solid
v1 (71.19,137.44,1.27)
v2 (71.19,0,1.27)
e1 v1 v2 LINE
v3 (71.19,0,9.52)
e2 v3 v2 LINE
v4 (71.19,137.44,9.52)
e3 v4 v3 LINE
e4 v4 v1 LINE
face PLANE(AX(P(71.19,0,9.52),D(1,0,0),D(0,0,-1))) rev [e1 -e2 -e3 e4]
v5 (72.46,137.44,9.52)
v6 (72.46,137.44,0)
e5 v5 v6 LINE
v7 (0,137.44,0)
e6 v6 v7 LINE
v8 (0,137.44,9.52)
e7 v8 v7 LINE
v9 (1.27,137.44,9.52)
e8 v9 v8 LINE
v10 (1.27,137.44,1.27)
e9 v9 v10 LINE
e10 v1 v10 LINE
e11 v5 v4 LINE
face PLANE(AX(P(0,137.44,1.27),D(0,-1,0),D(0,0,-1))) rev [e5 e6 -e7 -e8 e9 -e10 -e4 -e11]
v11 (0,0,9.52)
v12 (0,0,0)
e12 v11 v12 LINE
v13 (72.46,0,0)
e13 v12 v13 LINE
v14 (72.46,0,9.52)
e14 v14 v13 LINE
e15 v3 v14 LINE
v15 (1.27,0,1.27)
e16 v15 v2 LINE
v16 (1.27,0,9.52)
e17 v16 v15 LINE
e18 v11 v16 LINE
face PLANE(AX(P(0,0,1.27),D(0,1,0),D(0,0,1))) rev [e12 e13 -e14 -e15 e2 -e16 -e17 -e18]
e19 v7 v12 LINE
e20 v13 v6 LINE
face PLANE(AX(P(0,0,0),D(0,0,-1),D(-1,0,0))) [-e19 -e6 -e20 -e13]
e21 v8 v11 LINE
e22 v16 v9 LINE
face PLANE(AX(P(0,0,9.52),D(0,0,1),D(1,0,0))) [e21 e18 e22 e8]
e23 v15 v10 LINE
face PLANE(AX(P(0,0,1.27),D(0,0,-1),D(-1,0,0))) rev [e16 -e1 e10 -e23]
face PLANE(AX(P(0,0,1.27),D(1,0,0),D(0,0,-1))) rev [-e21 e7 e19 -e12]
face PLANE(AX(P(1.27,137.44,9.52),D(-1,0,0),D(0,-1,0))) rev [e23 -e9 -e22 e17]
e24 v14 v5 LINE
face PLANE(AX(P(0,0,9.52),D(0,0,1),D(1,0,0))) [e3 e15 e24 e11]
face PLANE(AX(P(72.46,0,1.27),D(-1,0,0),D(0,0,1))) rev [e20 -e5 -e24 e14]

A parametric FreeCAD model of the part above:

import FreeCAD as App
import Part
import Sketcher

V = App.Vector
Q = App.Units.Quantity

doc = App.newDocument("Part")
body = doc.addObject("PartDesign::Body", "Body")

# Sketch on XY plane
sketch1 = body.newObject("Sketcher::SketchObject", "Sketch")
sketch1.AttachmentSupport = (doc.getObject("XY_Plane"), [""])
sketch1.MapMode = "FlatFace"
sketch1.addGeometry([
    Part.LineSegment(V(0, 137, 0), V(0, 0, 0)),
    Part.LineSegment(V(0, 0, 0), V(72, 0, 0)),
    Part.LineSegment(V(72, 0, 0), V(72, 137, 0)),
    Part.LineSegment(V(72, 137, 0), V(0, 137, 0)),
], False)
sketch1.addConstraint([
    Sketcher.Constraint("Coincident", 0, 2, 1, 1),
    Sketcher.Constraint("Coincident", 1, 2, 2, 1),
    Sketcher.Constraint("Coincident", 2, 2, 3, 1),
    Sketcher.Constraint("Coincident", 3, 2, 0, 1),
    Sketcher.Constraint("Vertical", 0),
    Sketcher.Constraint("Horizontal", 1),
    Sketcher.Constraint("Vertical", 2),
    Sketcher.Constraint("Horizontal", 3),
    Sketcher.Constraint("Coincident", 0, 2, -1, 1),
    Sketcher.Constraint("DistanceX", 1, 1, 1, 2, 72.46),
    Sketcher.Constraint("DistanceY", 0, 2, 0, 1, 137.44),
])
pad1 = body.newObject("PartDesign::Pad", "Pad")
pad1.Profile = sketch1
pad1.Length = Q("0.05 in")

# Sketch on XY plane
sketch2 = body.newObject("Sketcher::SketchObject", "Sketch001")
sketch2.AttachmentSupport = (doc.getObject("XY_Plane"), [""])
sketch2.MapMode = "FlatFace"
sketch2.AttachmentOffset = App.Placement(V(0, 0, 0.05 * 25.4), App.Rotation())
sketch2.addGeometry([
    Part.LineSegment(V(0, 137.4, 0), V(0, 0, 0)),  # 0
    Part.LineSegment(V(0, 0, 0), V(1.3, 0, 0)),  # 1
    Part.LineSegment(V(1.3, 0, 0), V(1.3, 137.4, 0)),  # 2
    Part.LineSegment(V(1.3, 137.4, 0), V(0, 137.4, 0)),  # 3
    Part.LineSegment(V(71.2, 137.4, 0), V(71.2, 0, 0)),  # 4
    Part.LineSegment(V(71.2, 0, 0), V(72.5, 0, 0)),  # 5
    Part.LineSegment(V(72.5, 0, 0), V(72.5, 137.4, 0)),  # 6
    Part.LineSegment(V(72.5, 137.4, 0), V(71.2, 137.4, 0)),  # 7
], False)
sketch2.addConstraint([
    Sketcher.Constraint("Coincident", 0, 2, 1, 1),
    Sketcher.Constraint("Coincident", 1, 2, 2, 1),
    Sketcher.Constraint("Coincident", 2, 2, 3, 1),
    Sketcher.Constraint("Coincident", 3, 2, 0, 1),
    Sketcher.Constraint("Coincident", 4, 2, 5, 1),
    Sketcher.Constraint("Coincident", 5, 2, 6, 1),
    Sketcher.Constraint("Coincident", 6, 2, 7, 1),
    Sketcher.Constraint("Coincident", 7, 2, 4, 1),
    Sketcher.Constraint("Vertical", 0),
    Sketcher.Constraint("Horizontal", 1),
    Sketcher.Constraint("Vertical", 2),
    Sketcher.Constraint("Horizontal", 3),
    Sketcher.Constraint("Vertical", 4),
    Sketcher.Constraint("Horizontal", 5),
    Sketcher.Constraint("Vertical", 6),
    Sketcher.Constraint("Horizontal", 7),
    Sketcher.Constraint("Coincident", 0, 2, -1, 1),
    Sketcher.Constraint("PointOnObject", 4, 2, -1),
    Sketcher.Constraint("Horizontal", 3, 2, 6, 2),
    Sketcher.Constraint("Equal", 3, 5),
    Sketcher.Constraint("DistanceX", 1, 1, 1, 2, Q("0.05 in")),
    Sketcher.Constraint("DistanceY", 0, 2, 0, 1, 137.44),
    Sketcher.Constraint("DistanceX", -1, 1, 4, 2, 71.19),
])
pad2 = body.newObject("PartDesign::Pad", "Pad001")
pad2.Profile = sketch2
pad2.Length = 8.25

doc.recompute()
